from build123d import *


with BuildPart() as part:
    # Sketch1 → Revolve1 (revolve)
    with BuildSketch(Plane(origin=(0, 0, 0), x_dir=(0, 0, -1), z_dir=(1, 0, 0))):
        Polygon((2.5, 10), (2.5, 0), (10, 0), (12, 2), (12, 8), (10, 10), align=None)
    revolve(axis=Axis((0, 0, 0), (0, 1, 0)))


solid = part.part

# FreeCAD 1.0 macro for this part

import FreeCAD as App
import Part
import Sketcher
Q = App.Units.Quantity


def add_polygon(sketch, points):
    """Adds a closed chain of lines whose ends are joined by coincident constraints."""
    first, n = sketch.GeometryCount, len(points)
    for a, b in zip(points, points[1:] + points[:1]):
        sketch.addGeometry(Part.LineSegment(App.Vector(*a, 0), App.Vector(*b, 0)), False)
    for i in range(n):
        sketch.addConstraint(Sketcher.Constraint("Coincident", first + i, 2, first + (i + 1) % n, 1))

doc = App.newDocument("Part")
params = doc.addObject("Spreadsheet::Sheet", "Params")
for row, (alias, value) in enumerate([
    ("sketch1_width", "10 mm"),
    ("sketch1_width2", "6 mm"),
    ("sketch1_height", "7.5 mm"),
    ("revolution_angle", "360 deg"),
], start=1):
    params.set(f"A{row}", alias)
    params.set(f"B{row}", "=" + value)
    params.setAlias(f"B{row}", alias)

body = doc.addObject("PartDesign::Body", "Body")

sketch1 = body.newObject("Sketcher::SketchObject", "Sketch")
sketch1.AttachmentSupport = (doc.getObject("YZ_Plane"), [""])
sketch1.MapMode = "FlatFace"
add_polygon(sketch1, [(10, -2.5), (0, -2.5), (0, -10), (2, -12), (8, -12), (10, -10)])
sketch1.addConstraint(Sketcher.Constraint("Horizontal", 0))
sketch1.addConstraint(Sketcher.Constraint("Vertical", 1))
sketch1.addConstraint(Sketcher.Constraint("Horizontal", 3))
sketch1.addConstraint(Sketcher.Constraint("Vertical", 5))
sketch1.addConstraint(Sketcher.Constraint("PointOnObject", 0, 2, -2))
sketch1.addConstraint(Sketcher.Constraint("Perpendicular", 2, 4))
sketch1.addConstraint(Sketcher.Constraint("Horizontal", 1, 2, 4, 2))
sketch1.addConstraint(Sketcher.Constraint("Equal", 2, 4))
sketch1.addConstraint(Sketcher.Constraint("DistanceX", 0, 2, 0, 1, Q("10 mm")))
sketch1.addConstraint(Sketcher.Constraint("DistanceX", 3, 1, 3, 2, Q("6 mm")))
sketch1.addConstraint(Sketcher.Constraint("DistanceY", 1, 2, 1, 1, Q("7.5 mm")))
sketch1.addConstraint(Sketcher.Constraint("DistanceY", 1, 2, -1, 1, Q("10 mm")))
sketch1.setExpression("Constraints[14]", "Params.sketch1_width")
sketch1.setExpression("Constraints[15]", "Params.sketch1_width2")
sketch1.setExpression("Constraints[16]", "Params.sketch1_height")
revolution = body.newObject("PartDesign::Revolution", "Revolution")
revolution.Profile = sketch1
revolution.ReferenceAxis = (sketch1, ["H_Axis"])
revolution.setExpression("Angle", "Params.revolution_angle")

doc.recompute()
